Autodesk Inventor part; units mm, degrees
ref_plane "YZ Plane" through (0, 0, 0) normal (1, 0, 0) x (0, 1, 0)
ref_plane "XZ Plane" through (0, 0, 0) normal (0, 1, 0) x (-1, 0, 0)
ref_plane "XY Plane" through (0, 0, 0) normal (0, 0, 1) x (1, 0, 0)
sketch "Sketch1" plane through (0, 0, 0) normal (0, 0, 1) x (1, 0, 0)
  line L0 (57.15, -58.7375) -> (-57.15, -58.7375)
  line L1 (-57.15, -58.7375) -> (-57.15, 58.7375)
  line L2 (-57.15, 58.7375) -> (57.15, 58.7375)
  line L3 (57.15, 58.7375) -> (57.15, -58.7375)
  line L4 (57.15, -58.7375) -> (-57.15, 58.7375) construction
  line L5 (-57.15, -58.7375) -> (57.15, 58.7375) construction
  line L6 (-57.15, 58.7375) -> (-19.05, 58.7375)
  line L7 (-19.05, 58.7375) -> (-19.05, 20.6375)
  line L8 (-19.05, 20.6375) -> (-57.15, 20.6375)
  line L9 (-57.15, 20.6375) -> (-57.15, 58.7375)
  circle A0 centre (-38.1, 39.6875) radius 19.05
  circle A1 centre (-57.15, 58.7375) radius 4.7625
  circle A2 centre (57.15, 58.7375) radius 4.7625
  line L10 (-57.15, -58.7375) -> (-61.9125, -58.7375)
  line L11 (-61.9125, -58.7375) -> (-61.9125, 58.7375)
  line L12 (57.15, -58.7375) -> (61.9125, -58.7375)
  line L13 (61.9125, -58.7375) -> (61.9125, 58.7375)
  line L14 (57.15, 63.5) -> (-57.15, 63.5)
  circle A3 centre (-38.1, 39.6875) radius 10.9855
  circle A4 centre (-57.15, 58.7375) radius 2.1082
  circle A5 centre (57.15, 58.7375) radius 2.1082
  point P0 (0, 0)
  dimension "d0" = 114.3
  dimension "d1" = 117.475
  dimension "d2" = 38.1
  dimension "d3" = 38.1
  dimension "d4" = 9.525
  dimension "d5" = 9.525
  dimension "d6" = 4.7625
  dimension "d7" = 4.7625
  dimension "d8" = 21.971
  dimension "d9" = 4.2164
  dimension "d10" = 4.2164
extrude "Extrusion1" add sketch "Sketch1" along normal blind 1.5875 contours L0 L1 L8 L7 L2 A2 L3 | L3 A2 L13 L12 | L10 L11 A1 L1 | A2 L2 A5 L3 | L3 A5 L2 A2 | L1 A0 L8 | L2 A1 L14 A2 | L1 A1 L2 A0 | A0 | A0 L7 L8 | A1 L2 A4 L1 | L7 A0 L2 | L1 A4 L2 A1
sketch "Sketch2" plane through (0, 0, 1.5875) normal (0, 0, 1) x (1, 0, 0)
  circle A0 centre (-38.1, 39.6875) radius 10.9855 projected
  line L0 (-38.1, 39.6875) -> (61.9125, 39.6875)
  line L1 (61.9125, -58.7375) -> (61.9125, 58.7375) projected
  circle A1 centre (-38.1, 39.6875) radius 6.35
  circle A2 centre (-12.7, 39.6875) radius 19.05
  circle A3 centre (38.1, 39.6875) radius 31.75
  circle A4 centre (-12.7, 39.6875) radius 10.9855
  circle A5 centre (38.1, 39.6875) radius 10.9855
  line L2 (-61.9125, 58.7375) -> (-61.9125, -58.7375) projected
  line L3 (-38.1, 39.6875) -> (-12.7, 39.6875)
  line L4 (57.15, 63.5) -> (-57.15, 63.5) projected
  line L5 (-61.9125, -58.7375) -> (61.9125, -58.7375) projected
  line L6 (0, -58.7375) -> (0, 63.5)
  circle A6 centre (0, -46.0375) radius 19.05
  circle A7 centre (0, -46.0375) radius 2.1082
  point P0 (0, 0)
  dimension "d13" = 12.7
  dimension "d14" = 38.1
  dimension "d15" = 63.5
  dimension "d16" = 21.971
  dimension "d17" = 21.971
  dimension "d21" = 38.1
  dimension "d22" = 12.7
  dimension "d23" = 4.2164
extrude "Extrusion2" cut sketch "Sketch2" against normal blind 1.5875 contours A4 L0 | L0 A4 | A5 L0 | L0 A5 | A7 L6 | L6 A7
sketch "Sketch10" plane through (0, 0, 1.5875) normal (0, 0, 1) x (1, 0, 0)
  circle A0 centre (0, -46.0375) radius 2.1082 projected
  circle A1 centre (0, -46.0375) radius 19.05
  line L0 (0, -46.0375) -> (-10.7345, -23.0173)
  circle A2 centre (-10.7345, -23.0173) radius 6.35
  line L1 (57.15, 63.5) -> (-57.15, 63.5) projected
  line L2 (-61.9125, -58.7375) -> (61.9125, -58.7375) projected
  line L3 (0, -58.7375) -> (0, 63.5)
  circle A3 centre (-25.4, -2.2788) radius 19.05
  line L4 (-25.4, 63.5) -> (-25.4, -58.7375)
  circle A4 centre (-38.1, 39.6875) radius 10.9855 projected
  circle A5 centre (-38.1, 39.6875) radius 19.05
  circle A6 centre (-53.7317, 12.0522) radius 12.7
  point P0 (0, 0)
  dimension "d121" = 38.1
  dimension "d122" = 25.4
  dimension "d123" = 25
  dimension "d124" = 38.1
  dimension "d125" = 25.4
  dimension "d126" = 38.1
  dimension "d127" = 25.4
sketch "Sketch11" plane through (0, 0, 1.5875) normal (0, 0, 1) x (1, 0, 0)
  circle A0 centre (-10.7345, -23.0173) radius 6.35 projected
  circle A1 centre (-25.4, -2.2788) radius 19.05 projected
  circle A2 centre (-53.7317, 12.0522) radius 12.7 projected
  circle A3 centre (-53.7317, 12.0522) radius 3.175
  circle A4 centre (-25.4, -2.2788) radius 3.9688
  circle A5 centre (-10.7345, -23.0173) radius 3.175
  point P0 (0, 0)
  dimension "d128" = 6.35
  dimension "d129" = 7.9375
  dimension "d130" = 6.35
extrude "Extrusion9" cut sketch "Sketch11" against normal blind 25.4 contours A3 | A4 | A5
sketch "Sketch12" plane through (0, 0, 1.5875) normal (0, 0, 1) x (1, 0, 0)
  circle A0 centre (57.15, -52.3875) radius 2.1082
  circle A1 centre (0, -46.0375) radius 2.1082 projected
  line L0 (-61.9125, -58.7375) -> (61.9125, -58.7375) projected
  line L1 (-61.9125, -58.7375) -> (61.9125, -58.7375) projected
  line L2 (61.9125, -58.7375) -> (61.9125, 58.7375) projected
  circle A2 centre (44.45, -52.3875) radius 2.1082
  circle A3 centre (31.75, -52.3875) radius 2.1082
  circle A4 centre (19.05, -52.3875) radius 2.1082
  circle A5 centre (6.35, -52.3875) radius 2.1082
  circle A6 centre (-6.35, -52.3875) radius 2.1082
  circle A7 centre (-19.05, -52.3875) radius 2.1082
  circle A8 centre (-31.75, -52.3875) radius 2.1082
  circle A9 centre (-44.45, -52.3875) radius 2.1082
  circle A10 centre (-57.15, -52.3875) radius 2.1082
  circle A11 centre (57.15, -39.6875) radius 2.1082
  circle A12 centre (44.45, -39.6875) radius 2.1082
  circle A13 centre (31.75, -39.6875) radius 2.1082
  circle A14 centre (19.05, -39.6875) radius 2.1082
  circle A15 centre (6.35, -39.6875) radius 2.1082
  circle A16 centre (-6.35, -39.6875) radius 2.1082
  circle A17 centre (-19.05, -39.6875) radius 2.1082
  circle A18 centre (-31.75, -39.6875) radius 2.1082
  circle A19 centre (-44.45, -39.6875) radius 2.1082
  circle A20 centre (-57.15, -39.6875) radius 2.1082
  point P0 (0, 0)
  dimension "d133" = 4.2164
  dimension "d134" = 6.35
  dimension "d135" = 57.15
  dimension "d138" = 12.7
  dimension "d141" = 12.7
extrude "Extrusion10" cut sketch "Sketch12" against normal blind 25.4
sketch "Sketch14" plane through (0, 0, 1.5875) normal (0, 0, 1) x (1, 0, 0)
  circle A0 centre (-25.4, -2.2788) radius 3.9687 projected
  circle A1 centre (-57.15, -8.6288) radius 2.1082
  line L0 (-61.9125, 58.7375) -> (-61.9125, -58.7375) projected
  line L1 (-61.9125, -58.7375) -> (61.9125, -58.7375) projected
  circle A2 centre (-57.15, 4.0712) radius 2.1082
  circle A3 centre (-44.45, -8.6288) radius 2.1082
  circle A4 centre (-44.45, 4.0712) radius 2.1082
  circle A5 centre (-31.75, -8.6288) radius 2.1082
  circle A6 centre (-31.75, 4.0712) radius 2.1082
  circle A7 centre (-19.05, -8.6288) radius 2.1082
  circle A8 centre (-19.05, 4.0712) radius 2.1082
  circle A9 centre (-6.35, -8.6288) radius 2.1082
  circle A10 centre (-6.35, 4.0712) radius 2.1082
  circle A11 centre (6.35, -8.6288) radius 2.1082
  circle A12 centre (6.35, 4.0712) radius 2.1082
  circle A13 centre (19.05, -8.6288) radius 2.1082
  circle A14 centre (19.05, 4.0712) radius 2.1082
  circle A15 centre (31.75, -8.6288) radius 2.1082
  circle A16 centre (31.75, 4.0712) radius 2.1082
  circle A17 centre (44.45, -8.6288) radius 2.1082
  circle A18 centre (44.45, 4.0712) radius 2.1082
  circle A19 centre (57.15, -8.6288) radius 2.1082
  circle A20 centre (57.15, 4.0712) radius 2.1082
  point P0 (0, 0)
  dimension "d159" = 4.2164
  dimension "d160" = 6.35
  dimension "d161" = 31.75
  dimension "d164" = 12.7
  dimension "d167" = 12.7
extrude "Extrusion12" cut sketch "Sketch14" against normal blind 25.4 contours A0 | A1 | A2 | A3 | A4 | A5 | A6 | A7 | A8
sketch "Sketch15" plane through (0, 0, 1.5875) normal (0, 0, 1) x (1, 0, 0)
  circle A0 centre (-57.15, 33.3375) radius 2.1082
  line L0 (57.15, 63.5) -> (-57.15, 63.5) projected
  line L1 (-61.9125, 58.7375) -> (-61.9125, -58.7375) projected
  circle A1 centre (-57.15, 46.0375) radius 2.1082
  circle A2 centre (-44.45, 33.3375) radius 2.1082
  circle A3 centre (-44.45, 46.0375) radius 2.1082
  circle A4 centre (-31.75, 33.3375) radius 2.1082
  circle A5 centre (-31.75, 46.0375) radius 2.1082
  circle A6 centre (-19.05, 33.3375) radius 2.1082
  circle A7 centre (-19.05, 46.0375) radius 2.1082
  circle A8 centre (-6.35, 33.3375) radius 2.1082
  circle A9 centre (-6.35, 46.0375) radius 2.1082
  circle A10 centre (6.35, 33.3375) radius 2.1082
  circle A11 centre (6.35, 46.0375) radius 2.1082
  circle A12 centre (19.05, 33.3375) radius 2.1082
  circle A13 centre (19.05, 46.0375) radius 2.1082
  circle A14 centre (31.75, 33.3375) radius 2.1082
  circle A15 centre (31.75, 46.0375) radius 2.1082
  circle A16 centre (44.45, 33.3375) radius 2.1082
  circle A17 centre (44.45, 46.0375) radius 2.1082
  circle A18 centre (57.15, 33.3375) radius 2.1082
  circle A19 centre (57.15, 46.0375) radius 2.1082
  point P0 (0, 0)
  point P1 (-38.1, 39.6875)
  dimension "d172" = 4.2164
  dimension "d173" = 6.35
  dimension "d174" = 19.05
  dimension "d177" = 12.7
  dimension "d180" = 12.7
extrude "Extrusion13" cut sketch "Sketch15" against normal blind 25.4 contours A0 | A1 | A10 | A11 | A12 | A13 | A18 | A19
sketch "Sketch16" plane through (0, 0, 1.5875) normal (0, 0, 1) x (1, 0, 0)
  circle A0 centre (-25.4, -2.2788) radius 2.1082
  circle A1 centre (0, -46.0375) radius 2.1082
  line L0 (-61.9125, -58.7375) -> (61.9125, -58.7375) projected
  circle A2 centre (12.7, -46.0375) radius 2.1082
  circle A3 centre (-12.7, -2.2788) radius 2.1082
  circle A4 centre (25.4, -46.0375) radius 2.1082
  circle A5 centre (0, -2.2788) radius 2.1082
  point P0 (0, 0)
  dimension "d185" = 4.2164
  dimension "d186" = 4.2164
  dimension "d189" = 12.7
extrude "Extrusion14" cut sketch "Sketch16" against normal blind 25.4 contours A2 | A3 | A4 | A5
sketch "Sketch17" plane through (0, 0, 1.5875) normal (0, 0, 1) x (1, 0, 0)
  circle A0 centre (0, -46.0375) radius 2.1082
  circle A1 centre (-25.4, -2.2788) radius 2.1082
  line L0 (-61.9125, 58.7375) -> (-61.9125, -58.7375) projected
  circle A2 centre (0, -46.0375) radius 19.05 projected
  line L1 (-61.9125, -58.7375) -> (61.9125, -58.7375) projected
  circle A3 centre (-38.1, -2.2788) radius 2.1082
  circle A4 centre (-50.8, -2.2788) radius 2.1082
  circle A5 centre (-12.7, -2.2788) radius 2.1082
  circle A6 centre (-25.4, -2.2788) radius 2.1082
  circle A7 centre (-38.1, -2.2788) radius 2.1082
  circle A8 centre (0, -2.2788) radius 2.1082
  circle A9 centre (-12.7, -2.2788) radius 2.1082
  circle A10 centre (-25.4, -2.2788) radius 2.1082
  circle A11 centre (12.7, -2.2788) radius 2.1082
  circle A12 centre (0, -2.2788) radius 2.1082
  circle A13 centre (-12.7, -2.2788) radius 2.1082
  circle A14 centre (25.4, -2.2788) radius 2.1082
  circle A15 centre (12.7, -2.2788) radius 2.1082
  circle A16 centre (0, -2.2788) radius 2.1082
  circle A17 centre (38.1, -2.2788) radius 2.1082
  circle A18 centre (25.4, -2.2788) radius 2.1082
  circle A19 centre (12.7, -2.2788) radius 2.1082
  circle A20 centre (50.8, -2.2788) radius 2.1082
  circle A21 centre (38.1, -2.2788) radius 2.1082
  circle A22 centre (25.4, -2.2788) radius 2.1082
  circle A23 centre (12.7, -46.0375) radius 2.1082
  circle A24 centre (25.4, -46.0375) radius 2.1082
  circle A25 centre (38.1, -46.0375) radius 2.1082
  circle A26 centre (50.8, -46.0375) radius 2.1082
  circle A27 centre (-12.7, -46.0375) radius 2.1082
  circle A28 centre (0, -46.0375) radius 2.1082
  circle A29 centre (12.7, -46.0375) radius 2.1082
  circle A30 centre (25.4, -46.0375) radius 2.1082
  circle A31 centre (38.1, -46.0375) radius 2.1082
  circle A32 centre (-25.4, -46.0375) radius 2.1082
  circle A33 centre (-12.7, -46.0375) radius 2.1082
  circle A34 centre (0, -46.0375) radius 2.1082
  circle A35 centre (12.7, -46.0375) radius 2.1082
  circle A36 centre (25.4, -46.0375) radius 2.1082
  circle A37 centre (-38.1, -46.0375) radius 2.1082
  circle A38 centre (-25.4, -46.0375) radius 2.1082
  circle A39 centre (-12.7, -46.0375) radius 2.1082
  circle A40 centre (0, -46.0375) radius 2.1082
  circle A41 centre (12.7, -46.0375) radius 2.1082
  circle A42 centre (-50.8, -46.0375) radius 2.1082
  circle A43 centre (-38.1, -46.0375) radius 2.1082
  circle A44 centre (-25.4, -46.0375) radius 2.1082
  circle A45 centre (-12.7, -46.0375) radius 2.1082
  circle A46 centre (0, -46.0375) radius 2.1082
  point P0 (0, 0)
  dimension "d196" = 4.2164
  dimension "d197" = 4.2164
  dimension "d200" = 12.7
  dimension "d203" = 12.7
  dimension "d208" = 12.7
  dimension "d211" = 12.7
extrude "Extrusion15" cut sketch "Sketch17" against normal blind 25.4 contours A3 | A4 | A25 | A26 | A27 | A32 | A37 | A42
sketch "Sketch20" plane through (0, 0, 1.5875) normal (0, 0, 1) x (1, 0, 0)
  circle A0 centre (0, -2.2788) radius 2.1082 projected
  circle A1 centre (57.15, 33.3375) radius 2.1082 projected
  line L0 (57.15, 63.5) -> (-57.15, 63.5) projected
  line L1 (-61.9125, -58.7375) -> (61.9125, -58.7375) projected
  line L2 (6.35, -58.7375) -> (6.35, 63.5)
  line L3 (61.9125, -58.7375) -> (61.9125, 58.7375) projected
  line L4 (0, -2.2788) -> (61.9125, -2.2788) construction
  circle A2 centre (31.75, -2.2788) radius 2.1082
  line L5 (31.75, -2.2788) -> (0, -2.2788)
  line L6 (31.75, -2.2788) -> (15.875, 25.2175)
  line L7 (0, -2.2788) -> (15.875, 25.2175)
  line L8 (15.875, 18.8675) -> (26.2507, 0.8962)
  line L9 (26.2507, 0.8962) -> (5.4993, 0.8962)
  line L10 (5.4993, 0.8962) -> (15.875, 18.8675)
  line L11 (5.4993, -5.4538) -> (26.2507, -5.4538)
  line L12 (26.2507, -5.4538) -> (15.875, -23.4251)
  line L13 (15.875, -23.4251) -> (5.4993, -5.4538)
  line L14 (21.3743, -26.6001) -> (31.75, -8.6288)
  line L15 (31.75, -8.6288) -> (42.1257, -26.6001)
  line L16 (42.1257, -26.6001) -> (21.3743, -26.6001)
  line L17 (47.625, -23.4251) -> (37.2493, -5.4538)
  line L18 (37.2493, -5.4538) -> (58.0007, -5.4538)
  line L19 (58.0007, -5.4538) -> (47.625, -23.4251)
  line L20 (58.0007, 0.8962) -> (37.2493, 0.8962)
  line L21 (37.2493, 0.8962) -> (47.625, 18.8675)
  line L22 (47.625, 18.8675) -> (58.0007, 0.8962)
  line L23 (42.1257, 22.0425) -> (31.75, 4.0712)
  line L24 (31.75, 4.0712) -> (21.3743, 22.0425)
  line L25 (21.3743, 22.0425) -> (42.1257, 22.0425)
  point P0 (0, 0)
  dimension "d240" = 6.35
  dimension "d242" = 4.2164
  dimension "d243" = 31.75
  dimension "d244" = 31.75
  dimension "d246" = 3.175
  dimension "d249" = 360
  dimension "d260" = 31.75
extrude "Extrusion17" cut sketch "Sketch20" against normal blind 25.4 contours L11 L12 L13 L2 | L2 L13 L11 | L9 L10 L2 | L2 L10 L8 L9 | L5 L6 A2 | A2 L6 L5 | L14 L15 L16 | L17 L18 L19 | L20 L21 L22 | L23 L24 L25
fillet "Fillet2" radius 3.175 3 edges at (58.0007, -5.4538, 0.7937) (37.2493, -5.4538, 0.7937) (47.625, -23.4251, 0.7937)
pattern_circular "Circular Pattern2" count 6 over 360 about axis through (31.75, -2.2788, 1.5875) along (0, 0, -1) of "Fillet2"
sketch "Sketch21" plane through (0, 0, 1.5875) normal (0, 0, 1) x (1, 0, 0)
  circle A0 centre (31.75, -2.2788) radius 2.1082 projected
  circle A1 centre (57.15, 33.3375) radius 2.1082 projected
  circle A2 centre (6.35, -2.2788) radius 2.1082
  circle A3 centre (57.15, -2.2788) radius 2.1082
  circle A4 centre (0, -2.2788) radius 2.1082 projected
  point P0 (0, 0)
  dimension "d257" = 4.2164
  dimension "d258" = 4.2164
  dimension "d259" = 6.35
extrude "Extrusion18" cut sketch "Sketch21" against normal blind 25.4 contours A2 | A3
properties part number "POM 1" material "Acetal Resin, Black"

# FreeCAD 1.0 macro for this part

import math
import FreeCAD as App
import Part
import Sketcher
Q = App.Units.Quantity


def edges_at(feature, points):
    """Names of the edges that pass closest to the given points."""
    edges = feature.Shape.Edges
    near = lambda p: min(range(len(edges)), key=lambda i: edges[i].distToShape(Part.Vertex(*p))[0])
    return sorted({f"Edge{near(p) + 1}" for p in points})

doc = App.newDocument("Part")
body = doc.addObject("PartDesign::Body", "Body")

# Sketch on XY plane
sketch1 = body.newObject("Sketcher::SketchObject", "Sketch")
sketch1.AttachmentSupport = (doc.getObject("XY_Plane"), [""])
sketch1.MapMode = "FlatFace"
sketch1.addGeometry([
    Part.LineSegment(App.Vector(61.9, -58.7, 0), App.Vector(61.9, 58.7, 0)),  # 0
    Part.ArcOfCircle(Part.Circle(App.Vector(57.1, 58.7, 0), App.Vector(0, 0, 1), 4.8), math.radians(0), math.radians(90)),  # 1
    Part.LineSegment(App.Vector(57.1, 63.5, 0), App.Vector(-57.1, 63.5, 0)),  # 2
    Part.ArcOfCircle(Part.Circle(App.Vector(-57.1, 58.7, 0), App.Vector(0, 0, 1), 4.8), math.radians(90), math.radians(180)),  # 3
    Part.LineSegment(App.Vector(-61.9, 58.7, 0), App.Vector(-61.9, -58.7, 0)),  # 4
    Part.LineSegment(App.Vector(-61.9, -58.7, 0), App.Vector(61.9, -58.7, 0)),  # 5
    Part.Circle(App.Vector(57.1, 58.7, 0), App.Vector(0, 0, 1), 2.1),  # 6
    Part.Circle(App.Vector(-57.1, 58.7, 0), App.Vector(0, 0, 1), 2.1),  # 7
    Part.Circle(App.Vector(-38.1, 39.7, 0), App.Vector(0, 0, 1), 11),  # 8
], False)
sketch1.addConstraint([
    Sketcher.Constraint("Tangent", 0, 2, 1, 1),
    Sketcher.Constraint("Tangent", 1, 2, 2, 1),
    Sketcher.Constraint("Tangent", 2, 2, 3, 1),
    Sketcher.Constraint("Tangent", 3, 2, 4, 1),
    Sketcher.Constraint("Coincident", 4, 2, 5, 1),
    Sketcher.Constraint("Coincident", 5, 2, 0, 1),
    Sketcher.Constraint("Vertical", 0),
    Sketcher.Constraint("Horizontal", 2),
    Sketcher.Constraint("Vertical", 4),
    Sketcher.Constraint("Horizontal", 5),
    Sketcher.Constraint("Coincident", 6, 3, 1, 3),
    Sketcher.Constraint("Coincident", 7, 3, 3, 3),
    Sketcher.Constraint("Equal", 1, 3),
    Sketcher.Constraint("Equal", 6, 7),
    Sketcher.Constraint("Symmetric", 0, 2, 4, 2, -1, 1),
    Sketcher.Constraint("Diameter", 6, Q("0.166 in")),
    Sketcher.Constraint("Diameter", 8, Q("0.865 in")),
    Sketcher.Constraint("DistanceX", 2, 2, 2, 1, Q("4.5 in")),
    Sketcher.Constraint("Radius", 1, Q("0.1875 in")),
    Sketcher.Constraint("DistanceX", 8, 3, -1, 1, Q("1.5 in")),
    Sketcher.Constraint("DistanceY", 0, 1, 0, 2, Q("4.625 in")),
    Sketcher.Constraint("DistanceY", 8, 3, 3, 3, Q("0.75 in")),
])
pad1 = body.newObject("PartDesign::Pad", "Pad")
pad1.Profile = sketch1
pad1.Length = Q("0.0625 in")

# Sketch on XY plane
sketch2 = body.newObject("Sketcher::SketchObject", "Sketch001")
sketch2.AttachmentSupport = (doc.getObject("XY_Plane"), [""])
sketch2.MapMode = "FlatFace"
sketch2.AttachmentOffset = App.Placement(App.Vector(0, 0, 0.0625 * 25.4), App.Rotation())
sketch2.addGeometry([
    Part.Circle(App.Vector(-12.7, 39.7, 0), App.Vector(0, 0, 1), 11),
    Part.Circle(App.Vector(38.1, 39.7, 0), App.Vector(0, 0, 1), 11),
    Part.Circle(App.Vector(0, -46, 0), App.Vector(0, 0, 1), 2.1),
], False)
sketch2.addConstraint([
    Sketcher.Constraint("Equal", 0, 1),
    Sketcher.Constraint("PointOnObject", 2, 3, -2),
    Sketcher.Constraint("Horizontal", 0, 3, 1, 3),
    Sketcher.Constraint("Diameter", 0, Q("0.865 in")),
    Sketcher.Constraint("Diameter", 2, Q("0.166 in")),
    Sketcher.Constraint("DistanceX", 0, 3, -1, 1, Q("0.5 in")),
    Sketcher.Constraint("DistanceX", -1, 1, 1, 3, Q("1.5 in")),
    Sketcher.Constraint("DistanceY", -1, 1, 0, 3, Q("1.5625 in")),
    Sketcher.Constraint("DistanceY", 2, 3, -1, 1, Q("1.8125 in")),
])
pocket1 = body.newObject("PartDesign::Pocket", "Pocket")
pocket1.Profile = sketch2
pocket1.Length = Q("0.0625 in")

# Sketch on XY plane
sketch3 = body.newObject("Sketcher::SketchObject", "Sketch002")
sketch3.AttachmentSupport = (doc.getObject("XY_Plane"), [""])
sketch3.MapMode = "FlatFace"
sketch3.AttachmentOffset = App.Placement(App.Vector(0, 0, 0.0625 * 25.4), App.Rotation())
sketch3.addGeometry([
    Part.Circle(App.Vector(-53.7, 12.1, 0), App.Vector(0, 0, 1), 3.2),
    Part.Circle(App.Vector(-25.4, -2.3, 0), App.Vector(0, 0, 1), 4),
    Part.Circle(App.Vector(-10.7, -23, 0), App.Vector(0, 0, 1), 3.2),
], False)
sketch3.addConstraint([
    Sketcher.Constraint("Equal", 0, 2),
    Sketcher.Constraint("Diameter", 0, Q("0.25 in")),
    Sketcher.Constraint("Diameter", 1, Q("0.3125 in")),
    Sketcher.Constraint("DistanceX", 1, 3, -1, 1, Q("1 in")),
    Sketcher.Constraint("DistanceY", -1, 1, 0, 3, Q("0.4745 in")),
    Sketcher.Constraint("DistanceY", 2, 3, -1, 1, Q("0.9062 in")),
    Sketcher.Constraint("DistanceX", 0, 3, 2, 3, Q("1.6928 in")),
    Sketcher.Constraint("DistanceX", 0, 3, -1, 1, Q("53.7317 mm")),
    Sketcher.Constraint("DistanceY", 1, 3, -1, 1, Q("2.2788 mm")),
])
pocket2 = body.newObject("PartDesign::Pocket", "Pocket001")
pocket2.Profile = sketch3
pocket2.Length = Q("1 in")

# Sketch on XY plane
sketch4 = body.newObject("Sketcher::SketchObject", "Sketch003")
sketch4.AttachmentSupport = (doc.getObject("XY_Plane"), [""])
sketch4.MapMode = "FlatFace"
sketch4.AttachmentOffset = App.Placement(App.Vector(0, 0, 0.0625 * 25.4), App.Rotation())
sketch4.addGeometry([
    Part.Circle(App.Vector(57.1, -52.4, 0), App.Vector(0, 0, 1), 2.1),  # 0
    Part.Circle(App.Vector(0, -46, 0), App.Vector(0, 0, 1), 2.1),  # 1
    Part.Circle(App.Vector(44.5, -52.4, 0), App.Vector(0, 0, 1), 2.1),  # 2
    Part.Circle(App.Vector(31.8, -52.4, 0), App.Vector(0, 0, 1), 2.1),  # 3
    Part.Circle(App.Vector(19.1, -52.4, 0), App.Vector(0, 0, 1), 2.1),  # 4
    Part.Circle(App.Vector(6.3, -52.4, 0), App.Vector(0, 0, 1), 2.1),  # 5
    Part.Circle(App.Vector(-6.3, -52.4, 0), App.Vector(0, 0, 1), 2.1),  # 6
    Part.Circle(App.Vector(-19.1, -52.4, 0), App.Vector(0, 0, 1), 2.1),  # 7
    Part.Circle(App.Vector(-31.8, -52.4, 0), App.Vector(0, 0, 1), 2.1),  # 8
    Part.Circle(App.Vector(-44.5, -52.4, 0), App.Vector(0, 0, 1), 2.1),  # 9
    Part.Circle(App.Vector(-57.1, -52.4, 0), App.Vector(0, 0, 1), 2.1),  # 10
    Part.Circle(App.Vector(57.1, -39.7, 0), App.Vector(0, 0, 1), 2.1),  # 11
    Part.Circle(App.Vector(44.5, -39.7, 0), App.Vector(0, 0, 1), 2.1),  # 12
    Part.Circle(App.Vector(31.8, -39.7, 0), App.Vector(0, 0, 1), 2.1),  # 13
    Part.Circle(App.Vector(19.1, -39.7, 0), App.Vector(0, 0, 1), 2.1),  # 14
    Part.Circle(App.Vector(6.3, -39.7, 0), App.Vector(0, 0, 1), 2.1),  # 15
    Part.Circle(App.Vector(-6.3, -39.7, 0), App.Vector(0, 0, 1), 2.1),  # 16
    Part.Circle(App.Vector(-19.1, -39.7, 0), App.Vector(0, 0, 1), 2.1),  # 17
    Part.Circle(App.Vector(-31.8, -39.7, 0), App.Vector(0, 0, 1), 2.1),  # 18
    Part.Circle(App.Vector(-44.5, -39.7, 0), App.Vector(0, 0, 1), 2.1),  # 19
    Part.Circle(App.Vector(-57.1, -39.7, 0), App.Vector(0, 0, 1), 2.1),  # 20
], False)
sketch4.addConstraint([
    Sketcher.Constraint("Equal", 0, 1),
    Sketcher.Constraint("Equal", 1, 2),
    Sketcher.Constraint("Equal", 2, 3),
    Sketcher.Constraint("Equal", 3, 4),
    Sketcher.Constraint("Equal", 4, 5),
    Sketcher.Constraint("Equal", 5, 6),
    Sketcher.Constraint("Equal", 6, 7),
    Sketcher.Constraint("Equal", 7, 8),
    Sketcher.Constraint("Equal", 8, 9),
    Sketcher.Constraint("Equal", 9, 10),
    Sketcher.Constraint("Equal", 10, 11),
    Sketcher.Constraint("Equal", 11, 12),
    Sketcher.Constraint("Equal", 12, 13),
    Sketcher.Constraint("Equal", 13, 14),
    Sketcher.Constraint("Equal", 14, 15),
    Sketcher.Constraint("Equal", 15, 16),
    Sketcher.Constraint("Equal", 16, 17),
    Sketcher.Constraint("Equal", 17, 18),
    Sketcher.Constraint("Equal", 18, 19),
    Sketcher.Constraint("Equal", 19, 20),
    Sketcher.Constraint("Symmetric", 5, 3, 6, 3, -2),
    Sketcher.Constraint("Symmetric", 4, 3, 7, 3, -2),
    Sketcher.Constraint("Symmetric", 3, 3, 8, 3, -2),
    Sketcher.Constraint("Symmetric", 2, 3, 9, 3, -2),
    Sketcher.Constraint("Symmetric", 0, 3, 10, 3, -2),
    Sketcher.Constraint("Symmetric", 15, 3, 16, 3, -2),
    Sketcher.Constraint("Symmetric", 14, 3, 17, 3, -2),
    Sketcher.Constraint("Symmetric", 13, 3, 18, 3, -2),
    Sketcher.Constraint("Symmetric", 12, 3, 19, 3, -2),
    Sketcher.Constraint("Symmetric", 11, 3, 20, 3, -2),
    Sketcher.Constraint("PointOnObject", 1, 3, -2),
    Sketcher.Constraint("Horizontal", 0, 3, 2, 3),
    Sketcher.Constraint("Horizontal", 2, 3, 3, 3),
    Sketcher.Constraint("Horizontal", 3, 3, 4, 3),
    Sketcher.Constraint("Horizontal", 4, 3, 5, 3),
    Sketcher.Constraint("Horizontal", 11, 3, 12, 3),
    Sketcher.Constraint("Horizontal", 12, 3, 13, 3),
    Sketcher.Constraint("Horizontal", 13, 3, 14, 3),
    Sketcher.Constraint("Horizontal", 14, 3, 15, 3),
    Sketcher.Constraint("Vertical", 0, 3, 11, 3),
    Sketcher.Constraint("Vertical", 2, 3, 12, 3),
    Sketcher.Constraint("Vertical", 3, 3, 13, 3),
    Sketcher.Constraint("Vertical", 4, 3, 14, 3),
    Sketcher.Constraint("Vertical", 5, 3, 15, 3),
    Sketcher.Constraint("Diameter", 0, Q("0.166 in")),
    Sketcher.Constraint("DistanceX", 2, 3, 0, 3, Q("0.5 in")),
    Sketcher.Constraint("DistanceX", 3, 3, 2, 3, Q("0.5 in")),
    Sketcher.Constraint("DistanceX", 4, 3, 3, 3, Q("0.5 in")),
    Sketcher.Constraint("DistanceX", 5, 3, 4, 3, Q("0.5 in")),
    Sketcher.Constraint("DistanceX", 6, 3, 5, 3, Q("0.5 in")),
    Sketcher.Constraint("DistanceY", 0, 3, 11, 3, Q("0.5 in")),
    Sketcher.Constraint("DistanceY", 0, 3, 1, 3, Q("0.25 in")),
    Sketcher.Constraint("DistanceY", 0, 3, -1, 1, Q("2.0625 in")),
])
pocket3 = body.newObject("PartDesign::Pocket", "Pocket002")
pocket3.Profile = sketch4
pocket3.Length = Q("1 in")

# Sketch on XY plane
sketch5 = body.newObject("Sketcher::SketchObject", "Sketch004")
sketch5.AttachmentSupport = (doc.getObject("XY_Plane"), [""])
sketch5.MapMode = "FlatFace"
sketch5.AttachmentOffset = App.Placement(App.Vector(0, 0, 0.0625 * 25.4), App.Rotation())
sketch5.addGeometry([
    Part.Circle(App.Vector(-25.4, -2.3, 0), App.Vector(0, 0, 1), 4),  # 0
    Part.Circle(App.Vector(-57.1, -8.6, 0), App.Vector(0, 0, 1), 2.1),  # 1
    Part.Circle(App.Vector(-57.1, 4.1, 0), App.Vector(0, 0, 1), 2.1),  # 2
    Part.Circle(App.Vector(-44.5, -8.6, 0), App.Vector(0, 0, 1), 2.1),  # 3
    Part.Circle(App.Vector(-44.5, 4.1, 0), App.Vector(0, 0, 1), 2.1),  # 4
    Part.Circle(App.Vector(-31.8, -8.6, 0), App.Vector(0, 0, 1), 2.1),  # 5
    Part.Circle(App.Vector(-31.8, 4.1, 0), App.Vector(0, 0, 1), 2.1),  # 6
    Part.Circle(App.Vector(-19.1, -8.6, 0), App.Vector(0, 0, 1), 2.1),  # 7
    Part.Circle(App.Vector(-19.1, 4.1, 0), App.Vector(0, 0, 1), 2.1),  # 8
], False)
sketch5.addConstraint([
    Sketcher.Constraint("Equal", 1, 2),
    Sketcher.Constraint("Equal", 2, 3),
    Sketcher.Constraint("Equal", 3, 4),
    Sketcher.Constraint("Equal", 4, 5),
    Sketcher.Constraint("Equal", 5, 6),
    Sketcher.Constraint("Equal", 6, 7),
    Sketcher.Constraint("Equal", 7, 8),
    Sketcher.Constraint("Horizontal", 1, 3, 3, 3),
    Sketcher.Constraint("Horizontal", 2, 3, 4, 3),
    Sketcher.Constraint("Horizontal", 3, 3, 5, 3),
    Sketcher.Constraint("Horizontal", 4, 3, 6, 3),
    Sketcher.Constraint("Horizontal", 5, 3, 7, 3),
    Sketcher.Constraint("Horizontal", 6, 3, 8, 3),
    Sketcher.Constraint("Vertical", 1, 3, 2, 3),
    Sketcher.Constraint("Vertical", 3, 3, 4, 3),
    Sketcher.Constraint("Vertical", 5, 3, 6, 3),
    Sketcher.Constraint("Vertical", 7, 3, 8, 3),
    Sketcher.Constraint("Diameter", 1, Q("0.166 in")),
    Sketcher.Constraint("DistanceY", 1, 3, 2, 3, Q("0.5 in")),
    Sketcher.Constraint("DistanceX", 1, 3, 3, 3, Q("0.5 in")),
    Sketcher.Constraint("DistanceX", 3, 3, 5, 3, Q("0.5 in")),
    Sketcher.Constraint("DistanceX", 5, 3, 7, 3, Q("0.5 in")),
    Sketcher.Constraint("DistanceX", 5, 3, -1, 1, Q("1.25 in")),
    Sketcher.Constraint("DistanceX", 1, 3, 0, 3, Q("1.25 in")),
    Sketcher.Constraint("DistanceY", 1, 3, 0, 3, Q("0.25 in")),
    Sketcher.Constraint("Diameter", 0, Q("0.3125 in")),
    Sketcher.Constraint("DistanceY", 0, 3, -1, 1, Q("2.2788 mm")),
])
pocket4 = body.newObject("PartDesign::Pocket", "Pocket003")
pocket4.Profile = sketch5
pocket4.Length = Q("1 in")

# Sketch on XY plane
sketch6 = body.newObject("Sketcher::SketchObject", "Sketch005")
sketch6.AttachmentSupport = (doc.getObject("XY_Plane"), [""])
sketch6.MapMode = "FlatFace"
sketch6.AttachmentOffset = App.Placement(App.Vector(0, 0, 0.0625 * 25.4), App.Rotation())
sketch6.addGeometry([
    Part.Circle(App.Vector(-57.1, 33.3, 0), App.Vector(0, 0, 1), 2.1),  # 0
    Part.Circle(App.Vector(-57.1, 46, 0), App.Vector(0, 0, 1), 2.1),  # 1
    Part.Circle(App.Vector(6.3, 33.3, 0), App.Vector(0, 0, 1), 2.1),  # 2
    Part.Circle(App.Vector(6.3, 46, 0), App.Vector(0, 0, 1), 2.1),  # 3
    Part.Circle(App.Vector(19.1, 33.3, 0), App.Vector(0, 0, 1), 2.1),  # 4
    Part.Circle(App.Vector(19.1, 46, 0), App.Vector(0, 0, 1), 2.1),  # 5
    Part.Circle(App.Vector(57.1, 33.3, 0), App.Vector(0, 0, 1), 2.1),  # 6
    Part.Circle(App.Vector(57.1, 46, 0), App.Vector(0, 0, 1), 2.1),  # 7
], False)
sketch6.addConstraint([
    Sketcher.Constraint("Equal", 0, 1),
    Sketcher.Constraint("Equal", 1, 2),
    Sketcher.Constraint("Equal", 2, 3),
    Sketcher.Constraint("Equal", 3, 4),
    Sketcher.Constraint("Equal", 4, 5),
    Sketcher.Constraint("Equal", 5, 6),
    Sketcher.Constraint("Equal", 6, 7),
    Sketcher.Constraint("Symmetric", 0, 3, 6, 3, -2),
    Sketcher.Constraint("Symmetric", 1, 3, 7, 3, -2),
    Sketcher.Constraint("Horizontal", 0, 3, 2, 3),
    Sketcher.Constraint("Horizontal", 1, 3, 3, 3),
    Sketcher.Constraint("Horizontal", 2, 3, 4, 3),
    Sketcher.Constraint("Horizontal", 3, 3, 5, 3),
    Sketcher.Constraint("Vertical", 0, 3, 1, 3),
    Sketcher.Constraint("Vertical", 2, 3, 3, 3),
    Sketcher.Constraint("Vertical", 4, 3, 5, 3),
    Sketcher.Constraint("Diameter", 0, Q("0.166 in")),
    Sketcher.Constraint("DistanceY", 0, 3, 1, 3, Q("0.5 in")),
    Sketcher.Constraint("DistanceX", 2, 3, 4, 3, Q("0.5 in")),
    Sketcher.Constraint("DistanceX", -1, 1, 2, 3, Q("0.25 in")),
    Sketcher.Constraint("DistanceX", 0, 3, 4, 3, Q("3 in")),
    Sketcher.Constraint("DistanceY", -1, 1, 0, 3, Q("1.3125 in")),
])
pocket5 = body.newObject("PartDesign::Pocket", "Pocket004")
pocket5.Profile = sketch6
pocket5.Length = Q("1 in")

# Sketch on XY plane
sketch7 = body.newObject("Sketcher::SketchObject", "Sketch006")
sketch7.AttachmentSupport = (doc.getObject("XY_Plane"), [""])
sketch7.MapMode = "FlatFace"
sketch7.AttachmentOffset = App.Placement(App.Vector(0, 0, 0.0625 * 25.4), App.Rotation())
sketch7.addGeometry([
    Part.Circle(App.Vector(12.7, -46, 0), App.Vector(0, 0, 1), 2.1),
    Part.Circle(App.Vector(-12.7, -2.3, 0), App.Vector(0, 0, 1), 2.1),
    Part.Circle(App.Vector(25.4, -46, 0), App.Vector(0, 0, 1), 2.1),
    Part.Circle(App.Vector(0, -2.3, 0), App.Vector(0, 0, 1), 2.1),
], False)
sketch7.addConstraint([
    Sketcher.Constraint("Equal", 0, 1),
    Sketcher.Constraint("Equal", 1, 2),
    Sketcher.Constraint("Equal", 2, 3),
    Sketcher.Constraint("PointOnObject", 3, 3, -2),
    Sketcher.Constraint("Horizontal", 0, 3, 2, 3),
    Sketcher.Constraint("Horizontal", 1, 3, 3, 3),
    Sketcher.Constraint("Diameter", 0, Q("0.166 in")),
    Sketcher.Constraint("DistanceX", -1, 1, 2, 3, Q("1 in")),
    Sketcher.Constraint("DistanceX", 1, 3, 0, 3, Q("1 in")),
    Sketcher.Constraint("DistanceX", -1, 1, 0, 3, Q("0.5 in")),
    Sketcher.Constraint("DistanceY", 0, 3, -1, 1, Q("1.8125 in")),
    Sketcher.Constraint("DistanceY", 1, 3, -1, 1, Q("2.2788 mm")),
])
pocket6 = body.newObject("PartDesign::Pocket", "Pocket005")
pocket6.Profile = sketch7
pocket6.Length = Q("1 in")

# Sketch on XY plane
sketch8 = body.newObject("Sketcher::SketchObject", "Sketch007")
sketch8.AttachmentSupport = (doc.getObject("XY_Plane"), [""])
sketch8.MapMode = "FlatFace"
sketch8.AttachmentOffset = App.Placement(App.Vector(0, 0, 0.0625 * 25.4), App.Rotation())
sketch8.addGeometry([
    Part.Circle(App.Vector(-38.1, -2.3, 0), App.Vector(0, 0, 1), 2.1),  # 0
    Part.Circle(App.Vector(-50.8, -2.3, 0), App.Vector(0, 0, 1), 2.1),  # 1
    Part.Circle(App.Vector(38.1, -46, 0), App.Vector(0, 0, 1), 2.1),  # 2
    Part.Circle(App.Vector(50.8, -46, 0), App.Vector(0, 0, 1), 2.1),  # 3
    Part.Circle(App.Vector(-12.7, -46, 0), App.Vector(0, 0, 1), 2.1),  # 4
    Part.Circle(App.Vector(-25.4, -46, 0), App.Vector(0, 0, 1), 2.1),  # 5
    Part.Circle(App.Vector(-38.1, -46, 0), App.Vector(0, 0, 1), 2.1),  # 6
    Part.Circle(App.Vector(-50.8, -46, 0), App.Vector(0, 0, 1), 2.1),  # 7
], False)
sketch8.addConstraint([
    Sketcher.Constraint("Equal", 0, 1),
    Sketcher.Constraint("Equal", 1, 2),
    Sketcher.Constraint("Equal", 2, 3),
    Sketcher.Constraint("Equal", 3, 4),
    Sketcher.Constraint("Equal", 4, 5),
    Sketcher.Constraint("Equal", 5, 6),
    Sketcher.Constraint("Equal", 6, 7),
    Sketcher.Constraint("Symmetric", 2, 3, 6, 3, -2),
    Sketcher.Constraint("Symmetric", 3, 3, 7, 3, -2),
    Sketcher.Constraint("Horizontal", 0, 3, 1, 3),
    Sketcher.Constraint("Horizontal", 2, 3, 3, 3),
    Sketcher.Constraint("Horizontal", 3, 3, 4, 3),
    Sketcher.Constraint("Horizontal", 4, 3, 5, 3),
    Sketcher.Constraint("Vertical", 0, 3, 6, 3),
    Sketcher.Constraint("Vertical", 1, 3, 7, 3),
    Sketcher.Constraint("Diameter", 0, Q("0.166 in")),
    Sketcher.Constraint("DistanceX", 4, 3, -1, 1, Q("0.5 in")),
    Sketcher.Constraint("DistanceX", 1, 3, 0, 3, Q("0.5 in")),
    Sketcher.Constraint("DistanceX", 5, 3, 4, 3, Q("0.5 in")),
    Sketcher.Constraint("DistanceX", 0, 3, 5, 3, Q("0.5 in")),
    Sketcher.Constraint("DistanceY", 2, 3, -1, 1, Q("1.8125 in")),
    Sketcher.Constraint("DistanceY", 0, 3, -1, 1, Q("2.2788 mm")),
])
pocket7 = body.newObject("PartDesign::Pocket", "Pocket006")
pocket7.Profile = sketch8
pocket7.Length = Q("1 in")

# Sketch on XY plane
sketch9 = body.newObject("Sketcher::SketchObject", "Sketch008")
sketch9.AttachmentSupport = (doc.getObject("XY_Plane"), [""])
sketch9.MapMode = "FlatFace"
sketch9.AttachmentOffset = App.Placement(App.Vector(0, 0, 0.0625 * 25.4), App.Rotation())
sketch9.addGeometry([
    Part.LineSegment(App.Vector(26.3, -5.5, 0), App.Vector(5.5, -5.5, 0)),  # 0
    Part.LineSegment(App.Vector(5.5, -5.5, 0), App.Vector(15.9, -23.4, 0)),  # 1
    Part.LineSegment(App.Vector(15.9, -23.4, 0), App.Vector(26.3, -5.5, 0)),  # 2
    Part.LineSegment(App.Vector(5.5, 0.9, 0), App.Vector(26.3, 0.9, 0)),  # 3
    Part.LineSegment(App.Vector(26.3, 0.9, 0), App.Vector(15.9, 18.9, 0)),  # 4
    Part.LineSegment(App.Vector(15.9, 18.9, 0), App.Vector(5.5, 0.9, 0)),  # 5
    Part.Circle(App.Vector(31.8, -2.3, 0), App.Vector(0, 0, 1), 2.1),  # 6
    Part.LineSegment(App.Vector(31.8, -8.6, 0), App.Vector(21.4, -26.6, 0)),  # 7
    Part.LineSegment(App.Vector(21.4, -26.6, 0), App.Vector(42.1, -26.6, 0)),  # 8
    Part.LineSegment(App.Vector(42.1, -26.6, 0), App.Vector(31.8, -8.6, 0)),  # 9
    Part.LineSegment(App.Vector(37.2, -5.5, 0), App.Vector(47.6, -23.4, 0)),  # 10
    Part.LineSegment(App.Vector(47.6, -23.4, 0), App.Vector(58, -5.5, 0)),  # 11
    Part.LineSegment(App.Vector(58, -5.5, 0), App.Vector(37.2, -5.5, 0)),  # 12
    Part.LineSegment(App.Vector(37.2, 0.9, 0), App.Vector(58, 0.9, 0)),  # 13
    Part.LineSegment(App.Vector(58, 0.9, 0), App.Vector(47.6, 18.9, 0)),  # 14
    Part.LineSegment(App.Vector(47.6, 18.9, 0), App.Vector(37.2, 0.9, 0)),  # 15
    Part.LineSegment(App.Vector(31.8, 4.1, 0), App.Vector(42.1, 22, 0)),  # 16
    Part.LineSegment(App.Vector(42.1, 22, 0), App.Vector(21.4, 22, 0)),  # 17
    Part.LineSegment(App.Vector(21.4, 22, 0), App.Vector(31.8, 4.1, 0)),  # 18
], False)
sketch9.addConstraint([
    Sketcher.Constraint("Coincident", 0, 2, 1, 1),
    Sketcher.Constraint("Coincident", 1, 2, 2, 1),
    Sketcher.Constraint("Coincident", 2, 2, 0, 1),
    Sketcher.Constraint("Coincident", 3, 2, 4, 1),
    Sketcher.Constraint("Coincident", 4, 2, 5, 1),
    Sketcher.Constraint("Coincident", 5, 2, 3, 1),
    Sketcher.Constraint("Coincident", 7, 2, 8, 1),
    Sketcher.Constraint("Coincident", 8, 2, 9, 1),
    Sketcher.Constraint("Coincident", 9, 2, 7, 1),
    Sketcher.Constraint("Coincident", 10, 2, 11, 1),
    Sketcher.Constraint("Coincident", 11, 2, 12, 1),
    Sketcher.Constraint("Coincident", 12, 2, 10, 1),
    Sketcher.Constraint("Coincident", 13, 2, 14, 1),
    Sketcher.Constraint("Coincident", 14, 2, 15, 1),
    Sketcher.Constraint("Coincident", 15, 2, 13, 1),
    Sketcher.Constraint("Coincident", 16, 2, 17, 1),
    Sketcher.Constraint("Coincident", 17, 2, 18, 1),
    Sketcher.Constraint("Coincident", 18, 2, 16, 1),
    Sketcher.Constraint("Horizontal", 0),
    Sketcher.Constraint("Horizontal", 3),
    Sketcher.Constraint("Horizontal", 8),
    Sketcher.Constraint("Horizontal", 12),
    Sketcher.Constraint("Horizontal", 13),
    Sketcher.Constraint("Horizontal", 17),
    Sketcher.Constraint("Parallel", 1, 4),
    Sketcher.Constraint("Parallel", 2, 5),
    Sketcher.Constraint("Parallel", 5, 7),
    Sketcher.Constraint("Parallel", 4, 9),
    Sketcher.Constraint("Parallel", 9, 10),
    Sketcher.Constraint("Parallel", 7, 11),
    Sketcher.Constraint("Parallel", 10, 14),
    Sketcher.Constraint("Parallel", 11, 15),
    Sketcher.Constraint("Parallel", 15, 16),
    Sketcher.Constraint("Parallel", 14, 18),
    Sketcher.Constraint("Horizontal", 1, 2, 10, 2),
    Sketcher.Constraint("Horizontal", 2, 2, 11, 2),
    Sketcher.Constraint("Horizontal", 5, 2, 13, 2),
    Sketcher.Constraint("Horizontal", 4, 2, 14, 2),
    Sketcher.Constraint("Vertical", 2, 2, 3, 2),
    Sketcher.Constraint("Vertical", 1, 2, 4, 2),
    Sketcher.Constraint("Vertical", 0, 2, 5, 2),
    Sketcher.Constraint("Vertical", 6, 3, 9, 2),
    Sketcher.Constraint("Vertical", 11, 2, 13, 2),
    Sketcher.Constraint("Vertical", 8, 2, 16, 2),
    Sketcher.Constraint("Vertical", 7, 2, 17, 2),
    Sketcher.Constraint("Equal", 3, 8),
    Sketcher.Constraint("Diameter", 6, Q("0.166 in")),
    Sketcher.Constraint("DistanceX", -1, 1, 6, 3, Q("1.25 in")),
    Sketcher.Constraint("DistanceY", 2, 2, 3, 2, Q("0.25 in")),
    Sketcher.Constraint("DistanceY", 9, 2, 6, 3, Q("0.25 in")),
    Sketcher.Constraint("DistanceX", 2, 2, 11, 2, Q("1.25 in")),
    Sketcher.Constraint("DistanceY", 6, 3, 18, 2, Q("0.25 in")),
    Sketcher.Constraint("Angle", 1, Q("-60 deg")),
    Sketcher.Constraint("DistanceY", 0, 2, 6, 3, Q("0.125 in")),
    Sketcher.Constraint("DistanceX", -1, 1, 1, 2, Q("0.625 in")),
    Sketcher.Constraint("DistanceX", 0, 2, 0, 1, Q("20.7514 mm")),
    Sketcher.Constraint("DistanceY", 6, 3, -1, 1, Q("2.2788 mm")),
])
pocket8 = body.newObject("PartDesign::Pocket", "Pocket007")
pocket8.Profile = sketch9
pocket8.Length = Q("1 in")
doc.recompute()

fillet = body.newObject("PartDesign::Fillet", "Fillet")
fillet.Base = (pocket8, edges_at(pocket8, [(58.001, -5.454, 0.794), (37.249, -5.454, 0.794), (47.625, -23.425, 0.794)]))
fillet.Radius = Q("0.125 in")
doc.recompute()

datumline = body.newObject("PartDesign::Line", "DatumLine")
datumline.Placement = App.Placement(App.Vector(31.75, -2.2788, 0), App.Rotation(App.Vector(0, 0, 1), App.Vector(0, 0, 1)))
polarpattern = body.newObject("PartDesign::PolarPattern", "PolarPattern")
polarpattern.Originals = [fillet]
polarpattern.Axis = (datumline, [""])
polarpattern.Angle = 360
polarpattern.Occurrences = 6
body.Tip = polarpattern

# Sketch on XY plane
sketch10 = body.newObject("Sketcher::SketchObject", "Sketch009")
sketch10.AttachmentSupport = (doc.getObject("XY_Plane"), [""])
sketch10.MapMode = "FlatFace"
sketch10.AttachmentOffset = App.Placement(App.Vector(0, 0, 0.0625 * 25.4), App.Rotation())
sketch10.addGeometry([
    Part.Circle(App.Vector(6.3, -2.3, 0), App.Vector(0, 0, 1), 2.1),
    Part.Circle(App.Vector(57.1, -2.3, 0), App.Vector(0, 0, 1), 2.1),
], False)
sketch10.addConstraint([
    Sketcher.Constraint("Equal", 0, 1),
    Sketcher.Constraint("Horizontal", 0, 3, 1, 3),
    Sketcher.Constraint("Diameter", 0, Q("0.166 in")),
    Sketcher.Constraint("DistanceX", -1, 1, 0, 3, Q("0.25 in")),
    Sketcher.Constraint("DistanceX", 0, 3, 1, 3, Q("2 in")),
    Sketcher.Constraint("DistanceY", 0, 3, -1, 1, Q("2.2788 mm")),
])
pocket9 = body.newObject("PartDesign::Pocket", "Pocket008")
pocket9.Profile = sketch10
pocket9.Length = Q("1 in")

doc.recompute()
